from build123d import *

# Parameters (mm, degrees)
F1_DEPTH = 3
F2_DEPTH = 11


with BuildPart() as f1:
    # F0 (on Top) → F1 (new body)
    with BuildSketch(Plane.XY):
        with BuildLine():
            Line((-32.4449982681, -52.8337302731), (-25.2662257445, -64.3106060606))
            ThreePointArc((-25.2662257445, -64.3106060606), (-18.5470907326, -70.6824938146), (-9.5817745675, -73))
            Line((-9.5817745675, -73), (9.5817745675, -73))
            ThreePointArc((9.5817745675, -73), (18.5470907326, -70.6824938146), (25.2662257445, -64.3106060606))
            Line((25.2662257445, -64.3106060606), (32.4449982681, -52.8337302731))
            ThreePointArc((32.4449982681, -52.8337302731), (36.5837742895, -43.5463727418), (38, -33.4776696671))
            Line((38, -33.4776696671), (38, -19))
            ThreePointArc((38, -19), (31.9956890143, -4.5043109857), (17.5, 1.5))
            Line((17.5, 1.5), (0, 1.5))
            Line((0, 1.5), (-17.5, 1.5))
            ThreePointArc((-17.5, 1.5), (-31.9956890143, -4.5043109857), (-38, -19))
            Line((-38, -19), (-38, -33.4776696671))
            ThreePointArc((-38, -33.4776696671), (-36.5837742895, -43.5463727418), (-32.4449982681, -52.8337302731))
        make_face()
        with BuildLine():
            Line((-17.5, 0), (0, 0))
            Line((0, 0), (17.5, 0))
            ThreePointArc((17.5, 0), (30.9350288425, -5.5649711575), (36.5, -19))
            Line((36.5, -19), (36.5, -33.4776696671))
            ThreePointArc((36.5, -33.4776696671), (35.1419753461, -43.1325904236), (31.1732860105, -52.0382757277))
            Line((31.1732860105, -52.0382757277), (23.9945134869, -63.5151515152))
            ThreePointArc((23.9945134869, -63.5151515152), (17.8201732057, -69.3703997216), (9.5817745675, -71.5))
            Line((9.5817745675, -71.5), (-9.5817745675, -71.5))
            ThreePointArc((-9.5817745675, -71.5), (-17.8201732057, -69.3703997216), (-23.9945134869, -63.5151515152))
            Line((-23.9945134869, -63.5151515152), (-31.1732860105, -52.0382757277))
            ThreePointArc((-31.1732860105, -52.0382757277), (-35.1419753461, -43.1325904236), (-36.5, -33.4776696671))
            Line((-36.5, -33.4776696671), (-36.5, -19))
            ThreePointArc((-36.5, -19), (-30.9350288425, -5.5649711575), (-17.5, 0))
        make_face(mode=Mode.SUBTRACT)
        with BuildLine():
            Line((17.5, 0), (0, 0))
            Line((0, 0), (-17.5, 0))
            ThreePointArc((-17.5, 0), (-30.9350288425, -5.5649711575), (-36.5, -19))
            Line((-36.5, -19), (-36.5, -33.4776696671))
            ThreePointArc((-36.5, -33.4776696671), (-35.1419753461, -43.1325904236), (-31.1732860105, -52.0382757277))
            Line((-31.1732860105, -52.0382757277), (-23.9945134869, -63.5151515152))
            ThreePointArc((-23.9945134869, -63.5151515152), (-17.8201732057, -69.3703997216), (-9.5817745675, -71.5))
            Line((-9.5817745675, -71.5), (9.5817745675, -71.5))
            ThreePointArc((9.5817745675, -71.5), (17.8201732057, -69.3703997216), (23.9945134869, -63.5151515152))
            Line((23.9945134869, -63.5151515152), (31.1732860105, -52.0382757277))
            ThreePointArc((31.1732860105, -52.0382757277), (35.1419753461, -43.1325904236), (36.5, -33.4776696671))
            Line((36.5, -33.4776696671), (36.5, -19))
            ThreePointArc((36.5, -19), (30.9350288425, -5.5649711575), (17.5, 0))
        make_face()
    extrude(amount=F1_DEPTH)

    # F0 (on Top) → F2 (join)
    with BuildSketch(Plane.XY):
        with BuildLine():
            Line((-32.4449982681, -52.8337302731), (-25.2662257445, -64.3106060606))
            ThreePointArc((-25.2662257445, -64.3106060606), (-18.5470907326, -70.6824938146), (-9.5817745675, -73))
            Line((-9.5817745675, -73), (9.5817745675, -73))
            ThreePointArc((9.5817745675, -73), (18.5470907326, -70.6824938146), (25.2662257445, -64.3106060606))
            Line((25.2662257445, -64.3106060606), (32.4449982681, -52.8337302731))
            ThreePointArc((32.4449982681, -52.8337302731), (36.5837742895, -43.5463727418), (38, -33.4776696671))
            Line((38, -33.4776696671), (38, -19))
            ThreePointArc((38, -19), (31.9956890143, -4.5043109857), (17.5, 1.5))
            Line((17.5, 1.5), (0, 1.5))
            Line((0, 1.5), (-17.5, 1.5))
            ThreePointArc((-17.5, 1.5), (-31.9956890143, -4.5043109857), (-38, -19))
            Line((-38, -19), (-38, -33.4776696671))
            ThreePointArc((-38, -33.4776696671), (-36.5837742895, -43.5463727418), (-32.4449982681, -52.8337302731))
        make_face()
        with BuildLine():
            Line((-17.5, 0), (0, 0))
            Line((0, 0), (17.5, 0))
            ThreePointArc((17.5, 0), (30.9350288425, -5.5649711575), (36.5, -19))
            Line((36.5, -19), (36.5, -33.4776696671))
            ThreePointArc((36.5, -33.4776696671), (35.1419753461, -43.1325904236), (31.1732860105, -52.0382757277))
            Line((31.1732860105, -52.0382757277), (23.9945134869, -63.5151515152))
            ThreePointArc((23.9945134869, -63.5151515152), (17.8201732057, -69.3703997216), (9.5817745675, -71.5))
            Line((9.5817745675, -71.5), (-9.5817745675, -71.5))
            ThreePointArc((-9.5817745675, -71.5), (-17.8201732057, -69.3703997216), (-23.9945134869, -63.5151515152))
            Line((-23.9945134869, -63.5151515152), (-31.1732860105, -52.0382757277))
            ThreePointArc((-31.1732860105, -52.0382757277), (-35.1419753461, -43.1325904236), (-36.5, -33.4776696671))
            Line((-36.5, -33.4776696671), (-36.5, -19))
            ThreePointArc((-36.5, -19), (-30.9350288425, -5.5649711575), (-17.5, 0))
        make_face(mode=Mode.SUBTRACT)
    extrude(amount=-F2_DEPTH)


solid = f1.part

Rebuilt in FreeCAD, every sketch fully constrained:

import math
import FreeCAD as App
import Part
import Sketcher
from FreeCAD import Vector
Q = App.Units.Quantity

doc = App.newDocument("Part")
body = doc.addObject("PartDesign::Body", "Body")

# Sketch on XY plane
sketch1 = body.newObject("Sketcher::SketchObject", "Sketch")
sketch1.AttachmentSupport = (doc.getObject("XY_Plane"), [""])
sketch1.MapMode = "FlatFace"
sketch1.addGeometry([
    Part.LineSegment(Vector(-32, -53, 0), Vector(-25, -64, 0)),  # 0
    Part.ArcOfCircle(Part.Circle(Vector(-10, -54, 0), Vector(0, 0, 1), 18), math.radians(-148), math.radians(-90)),  # 1
    Part.LineSegment(Vector(-10, -73, 0), Vector(10, -73, 0)),  # 2
    Part.ArcOfCircle(Part.Circle(Vector(10, -54, 0), Vector(0, 0, 1), 18), math.radians(-90), math.radians(-32)),  # 3
    Part.LineSegment(Vector(25, -64, 0), Vector(32, -53, 0)),  # 4
    Part.ArcOfCircle(Part.Circle(Vector(2, -33, 0), Vector(0, 0, 1), 36), math.radians(-32), math.radians(0)),  # 5
    Part.LineSegment(Vector(38, -33, 0), Vector(38, -19, 0)),  # 6
    Part.ArcOfCircle(Part.Circle(Vector(18, -19, 0), Vector(0, 0, 1), 20), math.radians(0), math.radians(90)),  # 7
    Part.LineSegment(Vector(18, 2, 0), Vector(-18, 2, 0)),  # 8
    Part.ArcOfCircle(Part.Circle(Vector(-18, -19, 0), Vector(0, 0, 1), 20), math.radians(90), math.radians(180)),  # 9
    Part.LineSegment(Vector(-38, -19, 0), Vector(-38, -33, 0)),  # 10
    Part.ArcOfCircle(Part.Circle(Vector(-2, -33, 0), Vector(0, 0, 1), 36), math.radians(180), math.radians(212)),  # 11
], False)
sketch1.addConstraint([
    Sketcher.Constraint("Tangent", 0, 2, 1, 1),
    Sketcher.Constraint("Tangent", 1, 2, 2, 1),
    Sketcher.Constraint("Tangent", 2, 2, 3, 1),
    Sketcher.Constraint("Tangent", 3, 2, 4, 1),
    Sketcher.Constraint("Tangent", 4, 2, 5, 1),
    Sketcher.Constraint("Tangent", 5, 2, 6, 1),
    Sketcher.Constraint("Tangent", 6, 2, 7, 1),
    Sketcher.Constraint("Tangent", 7, 2, 8, 1),
    Sketcher.Constraint("Tangent", 8, 2, 9, 1),
    Sketcher.Constraint("Tangent", 9, 2, 10, 1),
    Sketcher.Constraint("Tangent", 10, 2, 11, 1),
    Sketcher.Constraint("Tangent", 11, 2, 0, 1),
    Sketcher.Constraint("Horizontal", 2),
    Sketcher.Constraint("Vertical", 6),
    Sketcher.Constraint("Horizontal", 8),
    Sketcher.Constraint("Vertical", 10),
    Sketcher.Constraint("Equal", 1, 3),
    Sketcher.Constraint("Equal", 7, 9),
    Sketcher.Constraint("Equal", 5, 11),
    Sketcher.Constraint("Symmetric", 5, 3, 11, 3, -2),
    Sketcher.Constraint("Horizontal", 0, 2, 3, 2),
    Sketcher.Constraint("Radius", 1, Q("18.5 mm")),
    Sketcher.Constraint("Radius", 5, Q("36.5 mm")),
    Sketcher.Constraint("Radius", 7, Q("20.5 mm")),
    Sketcher.Constraint("DistanceX", 8, 2, 8, 1, Q("35 mm")),
    Sketcher.Constraint("DistanceY", 7, 3, -1, 1, Q("19 mm")),
    Sketcher.Constraint("DistanceY", 1, 2, -1, 1, Q("73 mm")),
    Sketcher.Constraint("DistanceX", -1, 1, 4, 2, Q("32.444998 mm")),
    Sketcher.Constraint("DistanceX", 0, 2, 3, 3, Q("34.848 mm")),
])
pad1 = body.newObject("PartDesign::Pad", "Pad")
pad1.Profile = sketch1
pad1.Length = 3

# Sketch on XY plane
sketch2 = body.newObject("Sketcher::SketchObject", "Sketch001")
sketch2.AttachmentSupport = (doc.getObject("XY_Plane"), [""])
sketch2.MapMode = "FlatFace"
sketch2.addGeometry([
    Part.LineSegment(Vector(-32, -53, 0), Vector(-25, -64, 0)),  # 0
    Part.ArcOfCircle(Part.Circle(Vector(-10, -54, 0), Vector(0, 0, 1), 18), math.radians(-148), math.radians(-90)),  # 1
    Part.LineSegment(Vector(-10, -73, 0), Vector(10, -73, 0)),  # 2
    Part.ArcOfCircle(Part.Circle(Vector(10, -54, 0), Vector(0, 0, 1), 18), math.radians(-90), math.radians(-32)),  # 3
    Part.LineSegment(Vector(25, -64, 0), Vector(32, -53, 0)),  # 4
    Part.ArcOfCircle(Part.Circle(Vector(2, -33, 0), Vector(0, 0, 1), 36), math.radians(-32), math.radians(0)),  # 5
    Part.LineSegment(Vector(38, -33, 0), Vector(38, -19, 0)),  # 6
    Part.ArcOfCircle(Part.Circle(Vector(18, -19, 0), Vector(0, 0, 1), 20), math.radians(0), math.radians(90)),  # 7
    Part.LineSegment(Vector(18, 2, 0), Vector(-18, 2, 0)),  # 8
    Part.ArcOfCircle(Part.Circle(Vector(-18, -19, 0), Vector(0, 0, 1), 20), math.radians(90), math.radians(180)),  # 9
    Part.LineSegment(Vector(-38, -19, 0), Vector(-38, -33, 0)),  # 10
    Part.ArcOfCircle(Part.Circle(Vector(-2, -33, 0), Vector(0, 0, 1), 36), math.radians(180), math.radians(212)),  # 11
    Part.ArcOfCircle(Part.Circle(Vector(-18, -19, 0), Vector(0, 0, 1), 19), math.radians(90), math.radians(180)),  # 12
    Part.LineSegment(Vector(-18, 0, 0), Vector(18, 0, 0)),  # 13
    Part.ArcOfCircle(Part.Circle(Vector(18, -19, 0), Vector(0, 0, 1), 19), math.radians(0), math.radians(90)),  # 14
    Part.LineSegment(Vector(36, -19, 0), Vector(36, -33, 0)),  # 15
    Part.ArcOfCircle(Part.Circle(Vector(2, -33, 0), Vector(0, 0, 1), 35), math.radians(-32), math.radians(0)),  # 16
    Part.LineSegment(Vector(31, -52, 0), Vector(24, -64, 0)),  # 17
    Part.ArcOfCircle(Part.Circle(Vector(10, -54, 0), Vector(0, 0, 1), 17), math.radians(-90), math.radians(-32)),  # 18
    Part.LineSegment(Vector(10, -72, 0), Vector(-10, -72, 0)),  # 19
    Part.ArcOfCircle(Part.Circle(Vector(-10, -54, 0), Vector(0, 0, 1), 17), math.radians(-148), math.radians(-90)),  # 20
    Part.LineSegment(Vector(-24, -64, 0), Vector(-31, -52, 0)),  # 21
    Part.ArcOfCircle(Part.Circle(Vector(-2, -33, 0), Vector(0, 0, 1), 35), math.radians(180), math.radians(212)),  # 22
    Part.LineSegment(Vector(-36, -33, 0), Vector(-36, -19, 0)),  # 23
], False)
sketch2.addConstraint([
    Sketcher.Constraint("Tangent", 0, 2, 1, 1),
    Sketcher.Constraint("Tangent", 1, 2, 2, 1),
    Sketcher.Constraint("Tangent", 2, 2, 3, 1),
    Sketcher.Constraint("Tangent", 3, 2, 4, 1),
    Sketcher.Constraint("Tangent", 4, 2, 5, 1),
    Sketcher.Constraint("Tangent", 5, 2, 6, 1),
    Sketcher.Constraint("Tangent", 6, 2, 7, 1),
    Sketcher.Constraint("Tangent", 7, 2, 8, 1),
    Sketcher.Constraint("Tangent", 8, 2, 9, 1),
    Sketcher.Constraint("Tangent", 9, 2, 10, 1),
    Sketcher.Constraint("Tangent", 10, 2, 11, 1),
    Sketcher.Constraint("Tangent", 11, 2, 0, 1),
    Sketcher.Constraint("Tangent", 12, 1, 13, 1),
    Sketcher.Constraint("Tangent", 13, 2, 14, 2),
    Sketcher.Constraint("Tangent", 14, 1, 15, 1),
    Sketcher.Constraint("Tangent", 15, 2, 16, 2),
    Sketcher.Constraint("Tangent", 16, 1, 17, 1),
    Sketcher.Constraint("Tangent", 17, 2, 18, 2),
    Sketcher.Constraint("Tangent", 18, 1, 19, 1),
    Sketcher.Constraint("Tangent", 19, 2, 20, 2),
    Sketcher.Constraint("Tangent", 20, 1, 21, 1),
    Sketcher.Constraint("Tangent", 21, 2, 22, 2),
    Sketcher.Constraint("Tangent", 22, 1, 23, 1),
    Sketcher.Constraint("Tangent", 23, 2, 12, 2),
    Sketcher.Constraint("Horizontal", 2),
    Sketcher.Constraint("Vertical", 6),
    Sketcher.Constraint("Horizontal", 8),
    Sketcher.Constraint("Vertical", 10),
    Sketcher.Constraint("Horizontal", 13),
    Sketcher.Constraint("Vertical", 15),
    Sketcher.Constraint("Horizontal", 19),
    Sketcher.Constraint("Vertical", 23),
    Sketcher.Constraint("Coincident", 12, 3, 9, 3),
    Sketcher.Constraint("Coincident", 14, 3, 7, 3),
    Sketcher.Constraint("Coincident", 16, 3, 5, 3),
    Sketcher.Constraint("Coincident", 18, 3, 3, 3),
    Sketcher.Constraint("Coincident", 20, 3, 1, 3),
    Sketcher.Constraint("Coincident", 22, 3, 11, 3),
    Sketcher.Constraint("Equal", 1, 3),
    Sketcher.Constraint("Equal", 7, 9),
    Sketcher.Constraint("Equal", 5, 11),
    Sketcher.Constraint("Symmetric", 12, 1, 13, 2, -1, 1),
    Sketcher.Constraint("Symmetric", 0, 2, 3, 2, -2),
    Sketcher.Constraint("Parallel", 4, 17),
    Sketcher.Constraint("Radius", 12, Q("19 mm")),
    Sketcher.Constraint("Radius", 16, Q("35 mm")),
    Sketcher.Constraint("Radius", 18, Q("17 mm")),
    Sketcher.Constraint("Radius", 1, Q("18.5 mm")),
    Sketcher.Constraint("DistanceX", 8, 2, 8, 1, Q("35 mm")),
    Sketcher.Constraint("DistanceY", 1, 2, -1, 1, Q("73 mm")),
    Sketcher.Constraint("DistanceX", -1, 1, 4, 2, Q("32.444998 mm")),
    Sketcher.Constraint("DistanceX", 0, 2, 3, 3, Q("34.848 mm")),
])
pad2 = body.newObject("PartDesign::Pad", "Pad001")
pad2.Profile = sketch2
pad2.Length = 11
pad2.Reversed = True

doc.recompute()
